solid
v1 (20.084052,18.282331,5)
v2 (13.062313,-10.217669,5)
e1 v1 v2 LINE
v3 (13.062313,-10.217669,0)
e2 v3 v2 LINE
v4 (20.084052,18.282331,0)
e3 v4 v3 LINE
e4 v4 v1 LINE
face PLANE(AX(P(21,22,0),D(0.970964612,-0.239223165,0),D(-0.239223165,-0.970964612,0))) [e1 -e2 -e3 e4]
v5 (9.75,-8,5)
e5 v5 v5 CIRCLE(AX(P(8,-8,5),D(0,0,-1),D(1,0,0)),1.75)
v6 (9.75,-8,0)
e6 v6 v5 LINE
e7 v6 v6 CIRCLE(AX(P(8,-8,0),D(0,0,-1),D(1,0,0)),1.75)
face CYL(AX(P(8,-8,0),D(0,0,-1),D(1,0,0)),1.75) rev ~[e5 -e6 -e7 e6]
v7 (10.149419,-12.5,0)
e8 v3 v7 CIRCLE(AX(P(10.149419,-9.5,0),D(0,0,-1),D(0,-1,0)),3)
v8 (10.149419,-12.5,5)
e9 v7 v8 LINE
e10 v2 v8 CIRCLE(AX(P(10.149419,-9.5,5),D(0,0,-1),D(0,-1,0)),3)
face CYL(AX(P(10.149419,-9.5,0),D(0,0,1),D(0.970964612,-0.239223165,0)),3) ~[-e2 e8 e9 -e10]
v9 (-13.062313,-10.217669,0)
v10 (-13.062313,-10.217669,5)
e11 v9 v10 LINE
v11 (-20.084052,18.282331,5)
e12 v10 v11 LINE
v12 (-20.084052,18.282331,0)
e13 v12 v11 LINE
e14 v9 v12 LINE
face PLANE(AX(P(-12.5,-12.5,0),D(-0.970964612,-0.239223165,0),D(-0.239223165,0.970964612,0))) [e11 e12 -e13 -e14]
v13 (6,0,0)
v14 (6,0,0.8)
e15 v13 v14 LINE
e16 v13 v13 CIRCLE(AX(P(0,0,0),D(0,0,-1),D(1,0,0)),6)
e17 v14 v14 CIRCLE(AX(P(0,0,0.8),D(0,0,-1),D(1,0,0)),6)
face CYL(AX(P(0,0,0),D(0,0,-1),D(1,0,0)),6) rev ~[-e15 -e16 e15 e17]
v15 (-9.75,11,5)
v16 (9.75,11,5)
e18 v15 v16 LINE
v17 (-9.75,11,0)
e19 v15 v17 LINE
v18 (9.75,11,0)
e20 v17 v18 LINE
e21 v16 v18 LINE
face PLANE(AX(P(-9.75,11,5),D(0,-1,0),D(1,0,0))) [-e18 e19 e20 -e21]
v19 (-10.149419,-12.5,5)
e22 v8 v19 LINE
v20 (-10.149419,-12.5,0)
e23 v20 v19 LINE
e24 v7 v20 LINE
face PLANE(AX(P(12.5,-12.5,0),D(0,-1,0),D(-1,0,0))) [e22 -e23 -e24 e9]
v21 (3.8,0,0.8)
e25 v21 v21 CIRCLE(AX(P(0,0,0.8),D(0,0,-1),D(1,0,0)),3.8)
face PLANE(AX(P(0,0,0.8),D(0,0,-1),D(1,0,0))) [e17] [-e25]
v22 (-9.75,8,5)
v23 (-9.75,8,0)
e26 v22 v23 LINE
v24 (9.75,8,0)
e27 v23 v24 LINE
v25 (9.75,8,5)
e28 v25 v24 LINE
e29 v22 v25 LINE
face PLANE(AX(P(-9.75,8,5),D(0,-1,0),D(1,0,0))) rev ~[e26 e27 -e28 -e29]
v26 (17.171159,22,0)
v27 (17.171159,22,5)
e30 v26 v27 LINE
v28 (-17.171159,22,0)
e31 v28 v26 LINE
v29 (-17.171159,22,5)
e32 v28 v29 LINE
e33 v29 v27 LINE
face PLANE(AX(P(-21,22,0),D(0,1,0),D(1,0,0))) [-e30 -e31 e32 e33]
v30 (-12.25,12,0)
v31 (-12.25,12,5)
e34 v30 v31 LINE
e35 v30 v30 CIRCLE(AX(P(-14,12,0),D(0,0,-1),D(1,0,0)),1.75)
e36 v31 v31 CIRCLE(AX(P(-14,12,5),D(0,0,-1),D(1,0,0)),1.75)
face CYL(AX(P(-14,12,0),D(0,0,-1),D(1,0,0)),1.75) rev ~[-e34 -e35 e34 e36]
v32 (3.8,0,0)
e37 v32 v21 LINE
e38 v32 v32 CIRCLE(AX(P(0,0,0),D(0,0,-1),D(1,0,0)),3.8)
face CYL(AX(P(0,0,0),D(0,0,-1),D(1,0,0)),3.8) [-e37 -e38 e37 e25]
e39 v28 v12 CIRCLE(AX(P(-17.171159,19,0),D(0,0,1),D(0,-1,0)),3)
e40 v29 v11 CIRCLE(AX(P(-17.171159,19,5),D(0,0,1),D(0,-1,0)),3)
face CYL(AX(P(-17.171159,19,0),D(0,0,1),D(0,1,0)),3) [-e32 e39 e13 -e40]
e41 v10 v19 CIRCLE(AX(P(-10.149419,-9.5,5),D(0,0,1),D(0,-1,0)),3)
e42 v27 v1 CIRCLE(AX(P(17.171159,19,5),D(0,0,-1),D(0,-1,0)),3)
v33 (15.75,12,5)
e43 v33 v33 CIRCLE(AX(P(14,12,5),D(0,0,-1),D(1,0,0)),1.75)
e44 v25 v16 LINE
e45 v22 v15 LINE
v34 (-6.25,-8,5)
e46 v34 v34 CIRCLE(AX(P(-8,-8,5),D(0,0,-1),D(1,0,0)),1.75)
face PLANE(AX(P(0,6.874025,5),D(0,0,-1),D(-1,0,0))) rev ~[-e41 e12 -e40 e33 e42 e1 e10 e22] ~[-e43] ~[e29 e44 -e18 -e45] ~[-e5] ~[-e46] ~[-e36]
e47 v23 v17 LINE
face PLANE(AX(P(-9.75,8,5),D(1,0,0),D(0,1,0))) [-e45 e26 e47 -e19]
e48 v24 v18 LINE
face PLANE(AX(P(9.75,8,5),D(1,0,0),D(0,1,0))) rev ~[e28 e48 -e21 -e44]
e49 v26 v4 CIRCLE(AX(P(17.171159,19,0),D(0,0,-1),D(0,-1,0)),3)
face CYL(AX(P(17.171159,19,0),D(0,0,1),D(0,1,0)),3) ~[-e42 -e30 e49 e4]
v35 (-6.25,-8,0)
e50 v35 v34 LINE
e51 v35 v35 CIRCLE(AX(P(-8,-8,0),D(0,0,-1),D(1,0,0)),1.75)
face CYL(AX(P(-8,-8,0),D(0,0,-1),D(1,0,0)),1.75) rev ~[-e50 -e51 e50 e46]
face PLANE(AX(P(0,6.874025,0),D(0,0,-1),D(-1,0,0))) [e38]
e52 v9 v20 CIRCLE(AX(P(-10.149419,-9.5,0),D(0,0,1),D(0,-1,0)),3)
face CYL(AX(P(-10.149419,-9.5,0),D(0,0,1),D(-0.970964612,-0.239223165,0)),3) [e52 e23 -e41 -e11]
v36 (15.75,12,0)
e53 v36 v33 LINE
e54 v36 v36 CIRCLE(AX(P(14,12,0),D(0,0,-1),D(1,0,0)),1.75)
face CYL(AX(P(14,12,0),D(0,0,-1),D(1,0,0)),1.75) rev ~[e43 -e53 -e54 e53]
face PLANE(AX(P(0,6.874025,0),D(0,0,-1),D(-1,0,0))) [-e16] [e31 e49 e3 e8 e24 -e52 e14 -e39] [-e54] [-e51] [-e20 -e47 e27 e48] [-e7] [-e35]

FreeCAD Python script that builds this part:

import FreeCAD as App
import Part
import Sketcher
from FreeCAD import Vector


def edges_at(feature, points):
    """Names of the edges that pass closest to the given points."""
    edges = feature.Shape.Edges
    near = lambda p: min(range(len(edges)), key=lambda i: edges[i].distToShape(Part.Vertex(*p))[0])
    return sorted({f"Edge{near(p) + 1}" for p in points})

doc = App.newDocument("Part")
body = doc.addObject("PartDesign::Body", "Body")

# Sketch on XY plane
sketch1 = doc.addObject("Sketcher::SketchObject", "Sketch")
body.addObject(sketch1)
sketch1.AttachmentSupport = (doc.XY_Plane, [""])
sketch1.MapMode = "FlatFace"
sketch1.addGeometry(Part.LineSegment(Vector(21, 22, 0), Vector(-21, 22, 0)), False)
sketch1.addGeometry(Part.LineSegment(Vector(-21, 22, 0), Vector(-12, -12, 0)), False)
sketch1.addGeometry(Part.LineSegment(Vector(-12, -12, 0), Vector(12, -12, 0)), False)
sketch1.addGeometry(Part.LineSegment(Vector(12, -12, 0), Vector(21, 22, 0)), False)
sketch1.addConstraint(Sketcher.Constraint("Coincident", 0, 2, 1, 1))
sketch1.addConstraint(Sketcher.Constraint("Coincident", 1, 2, 2, 1))
sketch1.addConstraint(Sketcher.Constraint("Coincident", 2, 2, 3, 1))
sketch1.addConstraint(Sketcher.Constraint("Coincident", 3, 2, 0, 1))
sketch1.addConstraint(Sketcher.Constraint("Horizontal", 0))
sketch1.addConstraint(Sketcher.Constraint("Horizontal", 2))
sketch1.addConstraint(Sketcher.Constraint("Equal", 1, 3))
sketch1.addConstraint(Sketcher.Constraint("DistanceX", 0, 2, 0, 1, 42.0))
sketch1.addConstraint(Sketcher.Constraint("DistanceX", 2, 1, 2, 2, 25.0))
sketch1.addConstraint(Sketcher.Constraint("DistanceX", 0, 2, -1, 1, 21.0))
sketch1.addConstraint(Sketcher.Constraint("DistanceY", -1, 1, 0, 2, 22.0))
sketch1.addConstraint(Sketcher.Constraint("DistanceY", 1, 2, -1, 1, 12.5))
pad1 = doc.addObject("PartDesign::Pad", "Pad")
body.addObject(pad1)
pad1.Profile = sketch1
pad1.Length = 5

# Sketch on XY plane
sketch2 = doc.addObject("Sketcher::SketchObject", "Sketch001")
body.addObject(sketch2)
sketch2.AttachmentSupport = (doc.XY_Plane, [""])
sketch2.MapMode = "FlatFace"
sketch2.addGeometry(Part.Circle(Vector(0, 0, 0), Vector(0, 0, 1), 6), False)
sketch2.addGeometry(Part.Circle(Vector(0, 0, 0), Vector(0, 0, 1), 3.8), False)
sketch2.addConstraint(Sketcher.Constraint("Coincident", 0, 3, -1, 1))
sketch2.addConstraint(Sketcher.Constraint("Coincident", 1, 3, -1, 1))
sketch2.addConstraint(Sketcher.Constraint("Diameter", 0, 12.0))
sketch2.addConstraint(Sketcher.Constraint("Diameter", 1, 7.6))
pocket1 = doc.addObject("PartDesign::Pocket", "Pocket")
body.addObject(pocket1)
pocket1.Profile = sketch2
pocket1.Length = 0.8
pocket1.Reversed = True

# Sketch on XY plane
sketch3 = doc.addObject("Sketcher::SketchObject", "Sketch002")
body.addObject(sketch3)
sketch3.AttachmentSupport = (doc.XY_Plane, [""])
sketch3.MapMode = "FlatFace"
sketch3.AttachmentOffset = App.Placement(Vector(0, 0, 5), App.Rotation())
sketch3.addGeometry(Part.LineSegment(Vector(-9.8, 11, 0), Vector(-9.8, 8, 0)), False)
sketch3.addGeometry(Part.LineSegment(Vector(-9.8, 8, 0), Vector(9.8, 8, 0)), False)
sketch3.addGeometry(Part.LineSegment(Vector(9.8, 8, 0), Vector(9.8, 11, 0)), False)
sketch3.addGeometry(Part.LineSegment(Vector(9.8, 11, 0), Vector(-9.8, 11, 0)), False)
sketch3.addConstraint(Sketcher.Constraint("Coincident", 0, 2, 1, 1))
sketch3.addConstraint(Sketcher.Constraint("Coincident", 1, 2, 2, 1))
sketch3.addConstraint(Sketcher.Constraint("Coincident", 2, 2, 3, 1))
sketch3.addConstraint(Sketcher.Constraint("Coincident", 3, 2, 0, 1))
sketch3.addConstraint(Sketcher.Constraint("Vertical", 0))
sketch3.addConstraint(Sketcher.Constraint("Horizontal", 1))
sketch3.addConstraint(Sketcher.Constraint("Vertical", 2))
sketch3.addConstraint(Sketcher.Constraint("Horizontal", 3))
sketch3.addConstraint(Sketcher.Constraint("DistanceY", 0, 2, 0, 1, 3.0))
sketch3.addConstraint(Sketcher.Constraint("DistanceX", 1, 1, 1, 2, 19.5))
sketch3.addConstraint(Sketcher.Constraint("DistanceY", -1, 1, 0, 2, 8.0))
sketch3.addConstraint(Sketcher.Constraint("DistanceX", 0, 2, -1, 1, 9.75))
pocket2 = doc.addObject("PartDesign::Pocket", "Pocket001")
body.addObject(pocket2)
pocket2.Profile = sketch3
pocket2.Length = 5

# Sketch on XY plane
sketch4 = doc.addObject("Sketcher::SketchObject", "Sketch003")
body.addObject(sketch4)
sketch4.AttachmentSupport = (doc.XY_Plane, [""])
sketch4.MapMode = "FlatFace"
sketch4.addGeometry(Part.Circle(Vector(-8, -8, 0), Vector(0, 0, 1), 1.8), False)
sketch4.addGeometry(Part.Circle(Vector(8, -8, 0), Vector(0, 0, 1), 1.8), False)
sketch4.addGeometry(Part.Circle(Vector(-14, 12, 0), Vector(0, 0, 1), 1.8), False)
sketch4.addGeometry(Part.Circle(Vector(14, 12, 0), Vector(0, 0, 1), 1.8), False)
sketch4.addConstraint(Sketcher.Constraint("Equal", 0, 1))
sketch4.addConstraint(Sketcher.Constraint("Equal", 1, 2))
sketch4.addConstraint(Sketcher.Constraint("Equal", 2, 3))
sketch4.addConstraint(Sketcher.Constraint("Symmetric", 0, 3, 1, 3, -2))
sketch4.addConstraint(Sketcher.Constraint("Symmetric", 2, 3, 3, 3, -2))
sketch4.addConstraint(Sketcher.Constraint("Diameter", 0, 3.5))
sketch4.addConstraint(Sketcher.Constraint("DistanceX", 0, 3, -1, 1, 8.0))
sketch4.addConstraint(Sketcher.Constraint("DistanceY", 0, 3, -1, 1, 8.0))
sketch4.addConstraint(Sketcher.Constraint("DistanceX", 2, 3, -1, 1, 14.0))
sketch4.addConstraint(Sketcher.Constraint("DistanceY", -1, 1, 2, 3, 12.0))
pocket3 = doc.addObject("PartDesign::Pocket", "Pocket002")
body.addObject(pocket3)
pocket3.Profile = sketch4
pocket3.Length = 5
pocket3.Reversed = True
doc.recompute()

fillet = doc.addObject("PartDesign::Fillet", "Fillet")
body.addObject(fillet)
fillet.Base = (pocket3, edges_at(pocket3, [
    (21, 22, 2.5),
    (-21, 22, 2.5),
    (-12.5, -12.5, 2.5),
    (12.5, -12.5, 2.5),
]))
fillet.Radius = 3

doc.recompute()
